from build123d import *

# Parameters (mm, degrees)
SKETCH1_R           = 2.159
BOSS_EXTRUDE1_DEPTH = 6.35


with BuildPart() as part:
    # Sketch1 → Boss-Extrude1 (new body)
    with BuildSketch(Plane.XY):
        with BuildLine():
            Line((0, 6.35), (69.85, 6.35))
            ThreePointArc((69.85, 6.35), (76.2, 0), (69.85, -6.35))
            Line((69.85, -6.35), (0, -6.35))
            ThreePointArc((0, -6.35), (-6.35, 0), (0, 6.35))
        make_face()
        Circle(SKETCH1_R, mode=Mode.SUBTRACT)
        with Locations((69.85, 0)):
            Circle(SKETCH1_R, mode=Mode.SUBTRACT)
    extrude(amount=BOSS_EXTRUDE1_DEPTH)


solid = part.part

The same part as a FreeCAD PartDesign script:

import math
import FreeCAD as App
import Part
import Sketcher

V = App.Vector
Q = App.Units.Quantity

doc = App.newDocument("Part")
body = doc.addObject("PartDesign::Body", "Body")

# Sketch on XY plane
sketch1 = body.newObject("Sketcher::SketchObject", "Sketch")
sketch1.AttachmentSupport = (doc.getObject("XY_Plane"), [""])
sketch1.MapMode = "FlatFace"
sketch1.addGeometry(Part.LineSegment(V(69.85, 6.35, 0), V(0, 6.35, 0)), False)
sketch1.addGeometry(Part.ArcOfCircle(Part.Circle(V(0, 0, 0), V(0, 0, 1), 6.35), math.radians(90), math.radians(270)), False)
sketch1.addGeometry(Part.LineSegment(V(0, -6.35, 0), V(69.85, -6.35, 0)), False)
sketch1.addGeometry(Part.ArcOfCircle(Part.Circle(V(69.85, 0, 0), V(0, 0, 1), 6.35), math.radians(-90), math.radians(90)), False)
sketch1.addGeometry(Part.Circle(V(69.85, 0, 0), V(0, 0, 1), 2.159), False)
sketch1.addGeometry(Part.Circle(V(0, 0, 0), V(0, 0, 1), 2.159), False)
sketch1.addConstraint(Sketcher.Constraint("Tangent", 0, 2, 1, 1))
sketch1.addConstraint(Sketcher.Constraint("Tangent", 1, 2, 2, 1))
sketch1.addConstraint(Sketcher.Constraint("Tangent", 2, 2, 3, 1))
sketch1.addConstraint(Sketcher.Constraint("Tangent", 3, 2, 0, 1))
sketch1.addConstraint(Sketcher.Constraint("Horizontal", 0))
sketch1.addConstraint(Sketcher.Constraint("Horizontal", 2))
sketch1.addConstraint(Sketcher.Constraint("Coincident", 1, 3, -1, 1))
sketch1.addConstraint(Sketcher.Constraint("Coincident", 5, 3, -1, 1))
sketch1.addConstraint(Sketcher.Constraint("Coincident", 4, 3, 3, 3))
sketch1.addConstraint(Sketcher.Constraint("Equal", 4, 5))
sketch1.addConstraint(Sketcher.Constraint("Diameter", 4, Q("0.17 in")))
sketch1.addConstraint(Sketcher.Constraint("Radius", 1, Q("0.25 in")))
sketch1.addConstraint(Sketcher.Constraint("DistanceX", 0, 2, 0, 1, Q("2.75 in")))
pad1 = body.newObject("PartDesign::Pad", "Pad")
pad1.Profile = sketch1
pad1.Length = Q("0.25 in")

doc.recompute()
